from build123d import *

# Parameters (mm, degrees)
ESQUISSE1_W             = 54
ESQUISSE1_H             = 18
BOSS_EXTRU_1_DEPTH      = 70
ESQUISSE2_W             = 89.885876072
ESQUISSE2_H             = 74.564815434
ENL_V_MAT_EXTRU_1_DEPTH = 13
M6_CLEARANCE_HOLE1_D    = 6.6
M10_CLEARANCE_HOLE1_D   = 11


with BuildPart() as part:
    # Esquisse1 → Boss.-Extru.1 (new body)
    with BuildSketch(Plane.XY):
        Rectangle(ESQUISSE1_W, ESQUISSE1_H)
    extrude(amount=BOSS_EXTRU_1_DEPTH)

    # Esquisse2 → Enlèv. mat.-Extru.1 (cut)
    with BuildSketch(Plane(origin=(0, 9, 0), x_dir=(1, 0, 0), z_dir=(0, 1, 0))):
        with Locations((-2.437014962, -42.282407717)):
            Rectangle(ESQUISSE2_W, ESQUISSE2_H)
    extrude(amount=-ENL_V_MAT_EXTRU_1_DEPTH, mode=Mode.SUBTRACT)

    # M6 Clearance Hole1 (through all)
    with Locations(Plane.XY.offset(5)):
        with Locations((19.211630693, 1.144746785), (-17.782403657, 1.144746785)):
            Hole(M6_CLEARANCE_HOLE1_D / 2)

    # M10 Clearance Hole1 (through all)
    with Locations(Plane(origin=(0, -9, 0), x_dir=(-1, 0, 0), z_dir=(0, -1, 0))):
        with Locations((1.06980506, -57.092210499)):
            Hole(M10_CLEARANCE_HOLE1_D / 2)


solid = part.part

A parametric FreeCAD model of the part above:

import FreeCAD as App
import Part
import Sketcher


def add_polygon(sketch, points):
    """Adds a closed chain of lines whose ends are joined by coincident constraints."""
    first, n = sketch.GeometryCount, len(points)
    for a, b in zip(points, points[1:] + points[:1]):
        sketch.addGeometry(Part.LineSegment(App.Vector(*a, 0), App.Vector(*b, 0)), False)
    for i in range(n):
        sketch.addConstraint(Sketcher.Constraint("Coincident", first + i, 2, first + (i + 1) % n, 1))

doc = App.newDocument("Part")
body = doc.addObject("PartDesign::Body", "Body")

sketch1 = body.newObject("Sketcher::SketchObject", "Sketch")
sketch1.AttachmentSupport = (doc.getObject("XY_Plane"), [""])
sketch1.MapMode = "FlatFace"
add_polygon(sketch1, [(-27, 9), (-27, -9), (27, -9), (27, 9)])
sketch1.addConstraint([
    Sketcher.Constraint("Vertical", 0),
    Sketcher.Constraint("Horizontal", 1),
    Sketcher.Constraint("Vertical", 2),
    Sketcher.Constraint("Horizontal", 3),
    Sketcher.Constraint("Symmetric", 0, 2, 2, 2, -1, 1),
    Sketcher.Constraint("DistanceX", 1, 1, 1, 2, 54.0),
    Sketcher.Constraint("DistanceY", 0, 2, 0, 1, 18.0),
])
pad1 = body.newObject("PartDesign::Pad", "Pad")
pad1.Profile = sketch1
pad1.Length = 70

sketch2 = body.newObject("Sketcher::SketchObject", "Sketch001")
sketch2.AttachmentSupport = (doc.getObject("XZ_Plane"), [""])
sketch2.MapMode = "FlatFace"
sketch2.AttachmentOffset = App.Placement(App.Vector(0, 0, -9), App.Rotation())
add_polygon(sketch2, [(-47.379953, 5), (-47.379953, 79.564815), (42.505923, 79.564815), (42.505923, 5)])
sketch2.addConstraint([
    Sketcher.Constraint("Vertical", 0),
    Sketcher.Constraint("Horizontal", 1),
    Sketcher.Constraint("Vertical", 2),
    Sketcher.Constraint("Horizontal", 3),
    Sketcher.Constraint("DistanceY", -1, 1, 2, 2, 5.0),
    Sketcher.Constraint("DistanceX", 1, 1, 1, 2, 89.885876),
    Sketcher.Constraint("DistanceY", 0, 1, 0, 2, 74.564815),
    Sketcher.Constraint("DistanceX", 0, 2, -1, 1, 47.379953),
])
pocket1 = body.newObject("PartDesign::Pocket", "Pocket")
pocket1.Profile = sketch2
pocket1.Length = 13
pocket1.Reversed = True

sketch3 = body.newObject("Sketcher::SketchObject", "Sketch002")
sketch3.AttachmentSupport = (doc.getObject("XY_Plane"), [""])
sketch3.MapMode = "FlatFace"
sketch3.AttachmentOffset = App.Placement(App.Vector(0, 0, 5), App.Rotation())
sketch3.addGeometry([
    Part.Circle(App.Vector(19.211631, 1.144747, 0), App.Vector(0, 0, 1), 3.3),
    Part.Circle(App.Vector(-17.782404, 1.144747, 0), App.Vector(0, 0, 1), 3.3),
], False)
sketch3.addConstraint([
    Sketcher.Constraint("Equal", 0, 1),
    Sketcher.Constraint("Horizontal", 0, 3, 1, 3),
    Sketcher.Constraint("Diameter", 0, 6.6),
    Sketcher.Constraint("DistanceX", -1, 1, 0, 3, 19.211631),
    Sketcher.Constraint("DistanceY", -1, 1, 0, 3, 1.144747),
    Sketcher.Constraint("DistanceX", 1, 3, -1, 1, 17.782404),
])
doc.recompute()
hole = body.newObject("PartDesign::Hole", "Hole")
hole.Profile = sketch3
hole.ThreadType = "None"
hole.Diameter = 6.6
hole.DepthType = "ThroughAll"

sketch4 = body.newObject("Sketcher::SketchObject", "Sketch003")
sketch4.AttachmentSupport = (doc.getObject("XZ_Plane"), [""])
sketch4.MapMode = "FlatFace"
sketch4.AttachmentOffset = App.Placement(App.Vector(0, 0, 9), App.Rotation())
sketch4.addGeometry(Part.Circle(App.Vector(-1.069805, 57.09221, 0), App.Vector(0, 0, 1), 5.5), False)
sketch4.addConstraint([
    Sketcher.Constraint("Diameter", 0, 11.0),
    Sketcher.Constraint("DistanceY", -1, 1, 0, 3, 57.09221),
    Sketcher.Constraint("DistanceX", 0, 3, -1, 1, 1.069805),
])
doc.recompute()
hole2 = body.newObject("PartDesign::Hole", "Hole001")
hole2.Profile = sketch4
hole2.ThreadType = "None"
hole2.Diameter = 11
hole2.DepthType = "ThroughAll"

doc.recompute()
